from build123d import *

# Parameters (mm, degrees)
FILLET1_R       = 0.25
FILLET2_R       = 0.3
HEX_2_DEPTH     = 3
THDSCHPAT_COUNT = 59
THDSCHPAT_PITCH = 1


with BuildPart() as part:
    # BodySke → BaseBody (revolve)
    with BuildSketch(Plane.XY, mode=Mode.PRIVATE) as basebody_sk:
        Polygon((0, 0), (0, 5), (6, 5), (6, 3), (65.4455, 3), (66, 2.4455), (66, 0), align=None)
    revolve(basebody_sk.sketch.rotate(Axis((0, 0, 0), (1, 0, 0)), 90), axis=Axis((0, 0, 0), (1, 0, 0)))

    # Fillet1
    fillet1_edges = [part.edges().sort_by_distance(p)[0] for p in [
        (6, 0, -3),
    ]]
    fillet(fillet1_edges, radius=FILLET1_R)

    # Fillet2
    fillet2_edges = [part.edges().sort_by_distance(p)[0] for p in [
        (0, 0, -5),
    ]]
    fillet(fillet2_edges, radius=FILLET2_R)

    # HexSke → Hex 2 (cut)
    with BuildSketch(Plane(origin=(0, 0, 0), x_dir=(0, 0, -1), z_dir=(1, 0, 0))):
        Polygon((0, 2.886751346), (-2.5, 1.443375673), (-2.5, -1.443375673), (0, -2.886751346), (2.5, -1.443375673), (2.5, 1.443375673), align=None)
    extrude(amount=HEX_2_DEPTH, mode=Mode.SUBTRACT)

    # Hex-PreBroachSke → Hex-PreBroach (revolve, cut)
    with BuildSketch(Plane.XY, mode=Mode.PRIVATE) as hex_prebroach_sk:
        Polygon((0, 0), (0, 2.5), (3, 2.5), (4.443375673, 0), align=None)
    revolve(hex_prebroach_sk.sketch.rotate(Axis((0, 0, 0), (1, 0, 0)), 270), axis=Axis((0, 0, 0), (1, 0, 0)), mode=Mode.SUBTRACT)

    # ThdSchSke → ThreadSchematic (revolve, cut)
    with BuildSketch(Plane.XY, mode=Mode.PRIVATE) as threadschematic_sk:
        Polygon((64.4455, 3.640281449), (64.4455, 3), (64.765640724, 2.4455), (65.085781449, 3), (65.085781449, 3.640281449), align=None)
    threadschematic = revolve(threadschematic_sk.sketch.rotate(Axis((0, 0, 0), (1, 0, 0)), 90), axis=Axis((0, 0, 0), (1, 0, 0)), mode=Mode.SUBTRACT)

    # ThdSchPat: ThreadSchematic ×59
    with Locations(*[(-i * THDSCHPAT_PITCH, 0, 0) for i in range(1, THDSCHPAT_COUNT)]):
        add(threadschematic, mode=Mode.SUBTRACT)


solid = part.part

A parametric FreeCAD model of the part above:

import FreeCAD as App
import Part
import Sketcher
from FreeCAD import Vector
Q = App.Units.Quantity


def edges_at(feature, points):
    """Names of the edges that pass closest to the given points."""
    edges = feature.Shape.Edges
    near = lambda p: min(range(len(edges)), key=lambda i: edges[i].distToShape(Part.Vertex(*p))[0])
    return sorted({f"Edge{near(p) + 1}" for p in points})

doc = App.newDocument("Part")
body = doc.addObject("PartDesign::Body", "Body")

sketch1 = body.newObject("Sketcher::SketchObject", "Sketch")
sketch1.AttachmentSupport = (doc.getObject("XY_Plane"), [""])
sketch1.MapMode = "FlatFace"
sketch1.addGeometry([
    Part.LineSegment(Vector(0, 5, 0), Vector(0, 0, 0)),
    Part.LineSegment(Vector(0, 0, 0), Vector(66, 0, 0)),
    Part.LineSegment(Vector(66, 0, 0), Vector(66, 2.4, 0)),
    Part.LineSegment(Vector(66, 2.4, 0), Vector(65.4, 3, 0)),
    Part.LineSegment(Vector(65.4, 3, 0), Vector(6, 3, 0)),
    Part.LineSegment(Vector(6, 3, 0), Vector(6, 5, 0)),
    Part.LineSegment(Vector(6, 5, 0), Vector(0, 5, 0)),
], False)
sketch1.addConstraint([
    Sketcher.Constraint("Coincident", 0, 2, 1, 1),
    Sketcher.Constraint("Coincident", 1, 2, 2, 1),
    Sketcher.Constraint("Coincident", 2, 2, 3, 1),
    Sketcher.Constraint("Coincident", 3, 2, 4, 1),
    Sketcher.Constraint("Coincident", 4, 2, 5, 1),
    Sketcher.Constraint("Coincident", 5, 2, 6, 1),
    Sketcher.Constraint("Coincident", 6, 2, 0, 1),
    Sketcher.Constraint("Vertical", 0),
    Sketcher.Constraint("Horizontal", 1),
    Sketcher.Constraint("Vertical", 2),
    Sketcher.Constraint("Horizontal", 4),
    Sketcher.Constraint("Vertical", 5),
    Sketcher.Constraint("Horizontal", 6),
    Sketcher.Constraint("Coincident", 0, 2, -1, 1),
    Sketcher.Constraint("DistanceX", 1, 1, 1, 2, 66.0),
    Sketcher.Constraint("DistanceX", 6, 2, 6, 1, 6.0),
    Sketcher.Constraint("DistanceY", 0, 2, 0, 1, 5.0),
    Sketcher.Constraint("DistanceY", 5, 1, 5, 2, 2.0),
    Sketcher.Constraint("Angle", 3, Q("135 deg")),
    Sketcher.Constraint("DistanceX", 4, 2, 4, 1, 59.4455),
])
revolution = body.newObject("PartDesign::Revolution", "Revolution")
revolution.Profile = sketch1
revolution.ReferenceAxis = (sketch1, ["H_Axis"])
revolution.Angle = 360
doc.recompute()

fillet = body.newObject("PartDesign::Fillet", "Fillet")
fillet.Base = (revolution, edges_at(revolution, [(6, 0, -3)]))
fillet.Radius = 0.25
doc.recompute()

fillet2 = body.newObject("PartDesign::Fillet", "Fillet001")
fillet2.Base = (fillet, edges_at(fillet, [(0, 0, -5)]))
fillet2.Radius = 0.3

sketch2 = body.newObject("Sketcher::SketchObject", "Sketch001")
sketch2.AttachmentSupport = (doc.getObject("YZ_Plane"), [""])
sketch2.MapMode = "FlatFace"
sketch2.addGeometry([
    Part.LineSegment(Vector(2.9, 0, 0), Vector(1.4, 2.5, 0)),
    Part.LineSegment(Vector(1.4, 2.5, 0), Vector(-1.4, 2.5, 0)),
    Part.LineSegment(Vector(-1.4, 2.5, 0), Vector(-2.9, 0, 0)),
    Part.LineSegment(Vector(-2.9, 0, 0), Vector(-1.4, -2.5, 0)),
    Part.LineSegment(Vector(-1.4, -2.5, 0), Vector(1.4, -2.5, 0)),
    Part.LineSegment(Vector(1.4, -2.5, 0), Vector(2.9, 0, 0)),
], False)
sketch2.addConstraint([
    Sketcher.Constraint("Coincident", 0, 2, 1, 1),
    Sketcher.Constraint("Coincident", 1, 2, 2, 1),
    Sketcher.Constraint("Coincident", 2, 2, 3, 1),
    Sketcher.Constraint("Coincident", 3, 2, 4, 1),
    Sketcher.Constraint("Coincident", 4, 2, 5, 1),
    Sketcher.Constraint("Coincident", 5, 2, 0, 1),
    Sketcher.Constraint("Horizontal", 1),
    Sketcher.Constraint("Horizontal", 4),
    Sketcher.Constraint("Symmetric", 0, 2, 3, 2, -1, 1),
    Sketcher.Constraint("Symmetric", 2, 2, 5, 2, -1, 1),
    Sketcher.Constraint("PointOnObject", 2, 2, -1),
    Sketcher.Constraint("Parallel", 2, 5),
    Sketcher.Constraint("Vertical", 1, 2, 3, 2),
    Sketcher.Constraint("Angle", 0, Q("120 deg")),
    Sketcher.Constraint("DistanceY", 3, 2, 1, 2, 5.0),
    Sketcher.Constraint("DistanceX", 1, 2, 1, 1, 2.886751),
])
pocket1 = body.newObject("PartDesign::Pocket", "Pocket")
pocket1.Profile = sketch2
pocket1.Length = 3
pocket1.Reversed = True

sketch3 = body.newObject("Sketcher::SketchObject", "Sketch002")
sketch3.AttachmentSupport = (doc.getObject("XY_Plane"), [""])
sketch3.MapMode = "FlatFace"
sketch3.addGeometry([
    Part.LineSegment(Vector(0, 2.5, 0), Vector(0, 0, 0)),
    Part.LineSegment(Vector(0, 0, 0), Vector(4.4, 0, 0)),
    Part.LineSegment(Vector(4.4, 0, 0), Vector(3, 2.5, 0)),
    Part.LineSegment(Vector(3, 2.5, 0), Vector(0, 2.5, 0)),
], False)
sketch3.addConstraint([
    Sketcher.Constraint("Coincident", 0, 2, 1, 1),
    Sketcher.Constraint("Coincident", 1, 2, 2, 1),
    Sketcher.Constraint("Coincident", 2, 2, 3, 1),
    Sketcher.Constraint("Coincident", 3, 2, 0, 1),
    Sketcher.Constraint("Vertical", 0),
    Sketcher.Constraint("Horizontal", 1),
    Sketcher.Constraint("Horizontal", 3),
    Sketcher.Constraint("Coincident", 0, 2, -1, 1),
    Sketcher.Constraint("DistanceX", 3, 2, 3, 1, 3.0),
    Sketcher.Constraint("Angle", 2, Q("120 deg")),
    Sketcher.Constraint("DistanceY", 0, 2, 0, 1, 2.5),
])
groove = body.newObject("PartDesign::Groove", "Groove")
groove.Profile = sketch3
groove.ReferenceAxis = (sketch3, ["H_Axis"])
groove.Angle = 360

sketch4 = body.newObject("Sketcher::SketchObject", "Sketch003")
sketch4.AttachmentSupport = (doc.getObject("XY_Plane"), [""])
sketch4.MapMode = "FlatFace"
sketch4.addGeometry([
    Part.LineSegment(Vector(64.4, 3.6, 0), Vector(64.4, 3, 0)),
    Part.LineSegment(Vector(64.4, 3, 0), Vector(64.8, 2.4, 0)),
    Part.LineSegment(Vector(64.8, 2.4, 0), Vector(65.1, 3, 0)),
    Part.LineSegment(Vector(65.1, 3, 0), Vector(65.1, 3.6, 0)),
    Part.LineSegment(Vector(65.1, 3.6, 0), Vector(64.4, 3.6, 0)),
], False)
sketch4.addConstraint([
    Sketcher.Constraint("Coincident", 0, 2, 1, 1),
    Sketcher.Constraint("Coincident", 1, 2, 2, 1),
    Sketcher.Constraint("Coincident", 2, 2, 3, 1),
    Sketcher.Constraint("Coincident", 3, 2, 4, 1),
    Sketcher.Constraint("Coincident", 4, 2, 0, 1),
    Sketcher.Constraint("Vertical", 0),
    Sketcher.Constraint("Vertical", 3),
    Sketcher.Constraint("Horizontal", 4),
    Sketcher.Constraint("Horizontal", 0, 2, 2, 2),
    Sketcher.Constraint("Equal", 4, 0),
    Sketcher.Constraint("Equal", 1, 2),
    Sketcher.Constraint("Angle", 1, Q("-60 deg")),
    Sketcher.Constraint("DistanceY", -1, 1, 0, 2, 3.0),
    Sketcher.Constraint("DistanceX", 4, 2, 4, 1, 0.640281),
    Sketcher.Constraint("DistanceX", -1, 1, 0, 2, 64.4455),
])
groove2 = body.newObject("PartDesign::Groove", "Groove001")
groove2.Profile = sketch4
groove2.ReferenceAxis = (sketch4, ["H_Axis"])
groove2.Angle = 360
doc.recompute()

linearpattern = body.newObject("PartDesign::LinearPattern", "LinearPattern")
linearpattern.Originals = [groove2]
linearpattern.Direction = (doc.getObject("X_Axis"), [""])
linearpattern.Mode = "offset"
linearpattern.Offset = 1
linearpattern.Occurrences = 59
linearpattern.Reversed = True
body.Tip = linearpattern

doc.recompute()
